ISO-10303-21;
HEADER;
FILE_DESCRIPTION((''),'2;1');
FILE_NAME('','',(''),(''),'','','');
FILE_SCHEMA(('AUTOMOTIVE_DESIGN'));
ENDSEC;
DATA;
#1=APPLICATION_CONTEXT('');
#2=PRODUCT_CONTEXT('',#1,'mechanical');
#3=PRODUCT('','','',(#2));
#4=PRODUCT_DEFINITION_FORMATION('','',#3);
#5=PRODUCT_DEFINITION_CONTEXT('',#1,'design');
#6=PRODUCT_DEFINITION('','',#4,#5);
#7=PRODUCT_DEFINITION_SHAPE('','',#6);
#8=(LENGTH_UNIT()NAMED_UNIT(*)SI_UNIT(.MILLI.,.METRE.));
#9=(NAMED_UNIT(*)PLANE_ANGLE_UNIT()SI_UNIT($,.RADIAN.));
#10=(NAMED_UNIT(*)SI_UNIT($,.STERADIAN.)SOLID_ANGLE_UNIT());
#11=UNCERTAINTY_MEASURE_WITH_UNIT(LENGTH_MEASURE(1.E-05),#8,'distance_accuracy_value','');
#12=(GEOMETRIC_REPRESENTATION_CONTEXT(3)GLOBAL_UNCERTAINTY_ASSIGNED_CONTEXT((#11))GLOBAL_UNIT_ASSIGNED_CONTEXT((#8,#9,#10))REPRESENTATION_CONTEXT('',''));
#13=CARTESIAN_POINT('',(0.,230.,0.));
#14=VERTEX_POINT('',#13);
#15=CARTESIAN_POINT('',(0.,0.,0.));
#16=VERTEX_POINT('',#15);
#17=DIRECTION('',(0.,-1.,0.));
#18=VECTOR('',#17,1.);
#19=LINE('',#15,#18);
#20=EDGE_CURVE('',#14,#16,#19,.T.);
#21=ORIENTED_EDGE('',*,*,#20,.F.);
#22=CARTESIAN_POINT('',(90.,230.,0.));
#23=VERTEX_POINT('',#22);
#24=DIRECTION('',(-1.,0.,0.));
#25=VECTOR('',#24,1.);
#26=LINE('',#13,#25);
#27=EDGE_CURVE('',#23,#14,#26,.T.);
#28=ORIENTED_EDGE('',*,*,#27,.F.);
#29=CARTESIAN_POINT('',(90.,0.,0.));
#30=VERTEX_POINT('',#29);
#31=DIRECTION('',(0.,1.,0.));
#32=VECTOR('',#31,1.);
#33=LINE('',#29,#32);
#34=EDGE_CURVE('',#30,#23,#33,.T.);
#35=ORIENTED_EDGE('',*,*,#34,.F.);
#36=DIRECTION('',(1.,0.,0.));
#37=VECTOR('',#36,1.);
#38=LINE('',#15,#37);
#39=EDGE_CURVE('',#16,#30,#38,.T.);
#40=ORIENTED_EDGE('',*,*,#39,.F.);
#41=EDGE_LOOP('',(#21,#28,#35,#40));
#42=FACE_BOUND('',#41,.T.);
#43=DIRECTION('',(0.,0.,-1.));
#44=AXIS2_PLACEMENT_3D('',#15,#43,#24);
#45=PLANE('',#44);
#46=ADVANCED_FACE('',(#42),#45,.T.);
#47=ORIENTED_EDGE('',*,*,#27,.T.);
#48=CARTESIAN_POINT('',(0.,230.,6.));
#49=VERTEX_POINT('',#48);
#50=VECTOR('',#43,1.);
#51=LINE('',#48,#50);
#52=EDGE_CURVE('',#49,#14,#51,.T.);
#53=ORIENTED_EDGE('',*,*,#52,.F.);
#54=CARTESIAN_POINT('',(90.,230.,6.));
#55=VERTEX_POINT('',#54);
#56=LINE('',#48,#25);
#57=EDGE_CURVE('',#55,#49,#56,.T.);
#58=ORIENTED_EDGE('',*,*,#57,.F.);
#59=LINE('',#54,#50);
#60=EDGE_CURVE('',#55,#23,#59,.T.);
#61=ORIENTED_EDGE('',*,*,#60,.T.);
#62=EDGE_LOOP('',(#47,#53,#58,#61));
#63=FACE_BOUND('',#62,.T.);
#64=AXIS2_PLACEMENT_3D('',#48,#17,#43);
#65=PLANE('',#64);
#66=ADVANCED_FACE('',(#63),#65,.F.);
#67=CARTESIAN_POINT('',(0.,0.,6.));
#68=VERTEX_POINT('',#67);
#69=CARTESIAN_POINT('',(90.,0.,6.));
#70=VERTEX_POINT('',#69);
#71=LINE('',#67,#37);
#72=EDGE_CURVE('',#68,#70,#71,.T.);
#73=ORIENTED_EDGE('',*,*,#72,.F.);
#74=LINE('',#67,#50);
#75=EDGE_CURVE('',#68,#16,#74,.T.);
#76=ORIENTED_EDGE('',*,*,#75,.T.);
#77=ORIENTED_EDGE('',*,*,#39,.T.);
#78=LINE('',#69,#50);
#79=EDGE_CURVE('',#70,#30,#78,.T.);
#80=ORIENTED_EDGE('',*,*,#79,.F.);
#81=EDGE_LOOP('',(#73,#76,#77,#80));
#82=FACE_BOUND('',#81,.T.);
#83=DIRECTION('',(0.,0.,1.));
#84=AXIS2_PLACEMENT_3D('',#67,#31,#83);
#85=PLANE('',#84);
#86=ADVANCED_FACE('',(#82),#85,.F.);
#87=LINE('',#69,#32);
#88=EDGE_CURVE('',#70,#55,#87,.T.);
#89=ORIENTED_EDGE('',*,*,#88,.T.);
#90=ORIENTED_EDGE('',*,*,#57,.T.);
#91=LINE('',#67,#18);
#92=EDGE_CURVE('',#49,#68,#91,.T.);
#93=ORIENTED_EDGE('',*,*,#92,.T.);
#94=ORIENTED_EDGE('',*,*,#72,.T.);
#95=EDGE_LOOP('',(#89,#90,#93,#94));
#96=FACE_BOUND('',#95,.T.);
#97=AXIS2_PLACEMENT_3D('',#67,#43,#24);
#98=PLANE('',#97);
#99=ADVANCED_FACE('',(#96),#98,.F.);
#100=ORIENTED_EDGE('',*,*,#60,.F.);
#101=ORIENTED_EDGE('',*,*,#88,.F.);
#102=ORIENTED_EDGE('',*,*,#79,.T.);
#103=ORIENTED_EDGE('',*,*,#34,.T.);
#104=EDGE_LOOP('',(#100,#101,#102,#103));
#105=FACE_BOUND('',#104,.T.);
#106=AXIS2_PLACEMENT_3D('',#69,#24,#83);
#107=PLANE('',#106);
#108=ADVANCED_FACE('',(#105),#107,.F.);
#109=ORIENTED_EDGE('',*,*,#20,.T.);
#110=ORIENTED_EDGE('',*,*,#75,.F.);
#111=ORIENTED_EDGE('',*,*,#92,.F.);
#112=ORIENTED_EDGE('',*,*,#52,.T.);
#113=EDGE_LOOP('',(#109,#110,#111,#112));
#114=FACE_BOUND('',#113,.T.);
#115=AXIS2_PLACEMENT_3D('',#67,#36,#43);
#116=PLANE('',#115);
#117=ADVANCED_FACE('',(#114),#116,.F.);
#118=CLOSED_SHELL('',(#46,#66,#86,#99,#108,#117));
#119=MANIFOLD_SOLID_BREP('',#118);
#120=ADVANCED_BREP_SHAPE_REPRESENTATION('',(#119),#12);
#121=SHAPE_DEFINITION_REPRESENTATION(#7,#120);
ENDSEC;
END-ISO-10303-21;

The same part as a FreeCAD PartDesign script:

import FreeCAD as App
import Part
import Sketcher

doc = App.newDocument("Part")
body = doc.addObject("PartDesign::Body", "Body")

# Sketch on XY plane
sketch1 = doc.addObject("Sketcher::SketchObject", "Sketch")
body.addObject(sketch1)
sketch1.AttachmentSupport = (doc.XY_Plane, [""])
sketch1.MapMode = "FlatFace"
sketch1.addGeometry(Part.LineSegment(App.Vector(0, 230, 0), App.Vector(0, 0, 0)), False)
sketch1.addGeometry(Part.LineSegment(App.Vector(0, 0, 0), App.Vector(90, 0, 0)), False)
sketch1.addGeometry(Part.LineSegment(App.Vector(90, 0, 0), App.Vector(90, 230, 0)), False)
sketch1.addGeometry(Part.LineSegment(App.Vector(90, 230, 0), App.Vector(0, 230, 0)), False)
sketch1.addConstraint(Sketcher.Constraint("Coincident", 0, 2, 1, 1))
sketch1.addConstraint(Sketcher.Constraint("Coincident", 1, 2, 2, 1))
sketch1.addConstraint(Sketcher.Constraint("Coincident", 2, 2, 3, 1))
sketch1.addConstraint(Sketcher.Constraint("Coincident", 3, 2, 0, 1))
sketch1.addConstraint(Sketcher.Constraint("Vertical", 0))
sketch1.addConstraint(Sketcher.Constraint("Horizontal", 1))
sketch1.addConstraint(Sketcher.Constraint("Vertical", 2))
sketch1.addConstraint(Sketcher.Constraint("Horizontal", 3))
sketch1.addConstraint(Sketcher.Constraint("Coincident", 0, 2, -1, 1))
sketch1.addConstraint(Sketcher.Constraint("DistanceX", 1, 1, 1, 2, 90.0))
sketch1.addConstraint(Sketcher.Constraint("DistanceY", 0, 2, 0, 1, 230.0))
pad1 = doc.addObject("PartDesign::Pad", "Pad")
body.addObject(pad1)
pad1.Profile = sketch1
pad1.Length = 6

doc.recompute()
